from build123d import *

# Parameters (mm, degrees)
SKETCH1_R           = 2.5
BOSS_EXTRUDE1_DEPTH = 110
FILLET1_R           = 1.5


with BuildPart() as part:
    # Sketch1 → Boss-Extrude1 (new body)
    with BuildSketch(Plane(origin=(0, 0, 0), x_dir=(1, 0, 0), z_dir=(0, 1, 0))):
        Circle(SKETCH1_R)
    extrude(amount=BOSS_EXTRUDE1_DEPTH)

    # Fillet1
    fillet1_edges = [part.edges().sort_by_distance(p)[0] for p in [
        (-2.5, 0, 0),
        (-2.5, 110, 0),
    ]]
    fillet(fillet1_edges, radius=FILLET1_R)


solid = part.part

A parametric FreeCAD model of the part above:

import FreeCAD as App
import Part
import Sketcher
from FreeCAD import Vector
Q = App.Units.Quantity


def edges_at(feature, points):
    """Names of the edges that pass closest to the given points."""
    edges = feature.Shape.Edges
    near = lambda p: min(range(len(edges)), key=lambda i: edges[i].distToShape(Part.Vertex(*p))[0])
    return sorted({f"Edge{near(p) + 1}" for p in points})

doc = App.newDocument("Part")
body = doc.addObject("PartDesign::Body", "Body")

# Sketch on XZ plane
sketch1 = doc.addObject("Sketcher::SketchObject", "Sketch")
body.addObject(sketch1)
sketch1.AttachmentSupport = (doc.XZ_Plane, [""])
sketch1.MapMode = "FlatFace"
sketch1.addGeometry(Part.Circle(Vector(0, 0, 0), Vector(0, 0, 1), 2.5), False)
sketch1.addConstraint([
    Sketcher.Constraint("Coincident", 0, 3, -1, 1),
    Sketcher.Constraint("Diameter", 0, Q("5 mm")),
])
pad1 = doc.addObject("PartDesign::Pad", "Pad")
body.addObject(pad1)
pad1.Profile = sketch1
pad1.Length = 110
pad1.Reversed = True
doc.recompute()

fillet = doc.addObject("PartDesign::Fillet", "Fillet")
body.addObject(fillet)
fillet.Base = (pad1, edges_at(pad1, [(-2.5, 0, 0), (-2.5, 110, 0)]))
fillet.Radius = 1.5

doc.recompute()
